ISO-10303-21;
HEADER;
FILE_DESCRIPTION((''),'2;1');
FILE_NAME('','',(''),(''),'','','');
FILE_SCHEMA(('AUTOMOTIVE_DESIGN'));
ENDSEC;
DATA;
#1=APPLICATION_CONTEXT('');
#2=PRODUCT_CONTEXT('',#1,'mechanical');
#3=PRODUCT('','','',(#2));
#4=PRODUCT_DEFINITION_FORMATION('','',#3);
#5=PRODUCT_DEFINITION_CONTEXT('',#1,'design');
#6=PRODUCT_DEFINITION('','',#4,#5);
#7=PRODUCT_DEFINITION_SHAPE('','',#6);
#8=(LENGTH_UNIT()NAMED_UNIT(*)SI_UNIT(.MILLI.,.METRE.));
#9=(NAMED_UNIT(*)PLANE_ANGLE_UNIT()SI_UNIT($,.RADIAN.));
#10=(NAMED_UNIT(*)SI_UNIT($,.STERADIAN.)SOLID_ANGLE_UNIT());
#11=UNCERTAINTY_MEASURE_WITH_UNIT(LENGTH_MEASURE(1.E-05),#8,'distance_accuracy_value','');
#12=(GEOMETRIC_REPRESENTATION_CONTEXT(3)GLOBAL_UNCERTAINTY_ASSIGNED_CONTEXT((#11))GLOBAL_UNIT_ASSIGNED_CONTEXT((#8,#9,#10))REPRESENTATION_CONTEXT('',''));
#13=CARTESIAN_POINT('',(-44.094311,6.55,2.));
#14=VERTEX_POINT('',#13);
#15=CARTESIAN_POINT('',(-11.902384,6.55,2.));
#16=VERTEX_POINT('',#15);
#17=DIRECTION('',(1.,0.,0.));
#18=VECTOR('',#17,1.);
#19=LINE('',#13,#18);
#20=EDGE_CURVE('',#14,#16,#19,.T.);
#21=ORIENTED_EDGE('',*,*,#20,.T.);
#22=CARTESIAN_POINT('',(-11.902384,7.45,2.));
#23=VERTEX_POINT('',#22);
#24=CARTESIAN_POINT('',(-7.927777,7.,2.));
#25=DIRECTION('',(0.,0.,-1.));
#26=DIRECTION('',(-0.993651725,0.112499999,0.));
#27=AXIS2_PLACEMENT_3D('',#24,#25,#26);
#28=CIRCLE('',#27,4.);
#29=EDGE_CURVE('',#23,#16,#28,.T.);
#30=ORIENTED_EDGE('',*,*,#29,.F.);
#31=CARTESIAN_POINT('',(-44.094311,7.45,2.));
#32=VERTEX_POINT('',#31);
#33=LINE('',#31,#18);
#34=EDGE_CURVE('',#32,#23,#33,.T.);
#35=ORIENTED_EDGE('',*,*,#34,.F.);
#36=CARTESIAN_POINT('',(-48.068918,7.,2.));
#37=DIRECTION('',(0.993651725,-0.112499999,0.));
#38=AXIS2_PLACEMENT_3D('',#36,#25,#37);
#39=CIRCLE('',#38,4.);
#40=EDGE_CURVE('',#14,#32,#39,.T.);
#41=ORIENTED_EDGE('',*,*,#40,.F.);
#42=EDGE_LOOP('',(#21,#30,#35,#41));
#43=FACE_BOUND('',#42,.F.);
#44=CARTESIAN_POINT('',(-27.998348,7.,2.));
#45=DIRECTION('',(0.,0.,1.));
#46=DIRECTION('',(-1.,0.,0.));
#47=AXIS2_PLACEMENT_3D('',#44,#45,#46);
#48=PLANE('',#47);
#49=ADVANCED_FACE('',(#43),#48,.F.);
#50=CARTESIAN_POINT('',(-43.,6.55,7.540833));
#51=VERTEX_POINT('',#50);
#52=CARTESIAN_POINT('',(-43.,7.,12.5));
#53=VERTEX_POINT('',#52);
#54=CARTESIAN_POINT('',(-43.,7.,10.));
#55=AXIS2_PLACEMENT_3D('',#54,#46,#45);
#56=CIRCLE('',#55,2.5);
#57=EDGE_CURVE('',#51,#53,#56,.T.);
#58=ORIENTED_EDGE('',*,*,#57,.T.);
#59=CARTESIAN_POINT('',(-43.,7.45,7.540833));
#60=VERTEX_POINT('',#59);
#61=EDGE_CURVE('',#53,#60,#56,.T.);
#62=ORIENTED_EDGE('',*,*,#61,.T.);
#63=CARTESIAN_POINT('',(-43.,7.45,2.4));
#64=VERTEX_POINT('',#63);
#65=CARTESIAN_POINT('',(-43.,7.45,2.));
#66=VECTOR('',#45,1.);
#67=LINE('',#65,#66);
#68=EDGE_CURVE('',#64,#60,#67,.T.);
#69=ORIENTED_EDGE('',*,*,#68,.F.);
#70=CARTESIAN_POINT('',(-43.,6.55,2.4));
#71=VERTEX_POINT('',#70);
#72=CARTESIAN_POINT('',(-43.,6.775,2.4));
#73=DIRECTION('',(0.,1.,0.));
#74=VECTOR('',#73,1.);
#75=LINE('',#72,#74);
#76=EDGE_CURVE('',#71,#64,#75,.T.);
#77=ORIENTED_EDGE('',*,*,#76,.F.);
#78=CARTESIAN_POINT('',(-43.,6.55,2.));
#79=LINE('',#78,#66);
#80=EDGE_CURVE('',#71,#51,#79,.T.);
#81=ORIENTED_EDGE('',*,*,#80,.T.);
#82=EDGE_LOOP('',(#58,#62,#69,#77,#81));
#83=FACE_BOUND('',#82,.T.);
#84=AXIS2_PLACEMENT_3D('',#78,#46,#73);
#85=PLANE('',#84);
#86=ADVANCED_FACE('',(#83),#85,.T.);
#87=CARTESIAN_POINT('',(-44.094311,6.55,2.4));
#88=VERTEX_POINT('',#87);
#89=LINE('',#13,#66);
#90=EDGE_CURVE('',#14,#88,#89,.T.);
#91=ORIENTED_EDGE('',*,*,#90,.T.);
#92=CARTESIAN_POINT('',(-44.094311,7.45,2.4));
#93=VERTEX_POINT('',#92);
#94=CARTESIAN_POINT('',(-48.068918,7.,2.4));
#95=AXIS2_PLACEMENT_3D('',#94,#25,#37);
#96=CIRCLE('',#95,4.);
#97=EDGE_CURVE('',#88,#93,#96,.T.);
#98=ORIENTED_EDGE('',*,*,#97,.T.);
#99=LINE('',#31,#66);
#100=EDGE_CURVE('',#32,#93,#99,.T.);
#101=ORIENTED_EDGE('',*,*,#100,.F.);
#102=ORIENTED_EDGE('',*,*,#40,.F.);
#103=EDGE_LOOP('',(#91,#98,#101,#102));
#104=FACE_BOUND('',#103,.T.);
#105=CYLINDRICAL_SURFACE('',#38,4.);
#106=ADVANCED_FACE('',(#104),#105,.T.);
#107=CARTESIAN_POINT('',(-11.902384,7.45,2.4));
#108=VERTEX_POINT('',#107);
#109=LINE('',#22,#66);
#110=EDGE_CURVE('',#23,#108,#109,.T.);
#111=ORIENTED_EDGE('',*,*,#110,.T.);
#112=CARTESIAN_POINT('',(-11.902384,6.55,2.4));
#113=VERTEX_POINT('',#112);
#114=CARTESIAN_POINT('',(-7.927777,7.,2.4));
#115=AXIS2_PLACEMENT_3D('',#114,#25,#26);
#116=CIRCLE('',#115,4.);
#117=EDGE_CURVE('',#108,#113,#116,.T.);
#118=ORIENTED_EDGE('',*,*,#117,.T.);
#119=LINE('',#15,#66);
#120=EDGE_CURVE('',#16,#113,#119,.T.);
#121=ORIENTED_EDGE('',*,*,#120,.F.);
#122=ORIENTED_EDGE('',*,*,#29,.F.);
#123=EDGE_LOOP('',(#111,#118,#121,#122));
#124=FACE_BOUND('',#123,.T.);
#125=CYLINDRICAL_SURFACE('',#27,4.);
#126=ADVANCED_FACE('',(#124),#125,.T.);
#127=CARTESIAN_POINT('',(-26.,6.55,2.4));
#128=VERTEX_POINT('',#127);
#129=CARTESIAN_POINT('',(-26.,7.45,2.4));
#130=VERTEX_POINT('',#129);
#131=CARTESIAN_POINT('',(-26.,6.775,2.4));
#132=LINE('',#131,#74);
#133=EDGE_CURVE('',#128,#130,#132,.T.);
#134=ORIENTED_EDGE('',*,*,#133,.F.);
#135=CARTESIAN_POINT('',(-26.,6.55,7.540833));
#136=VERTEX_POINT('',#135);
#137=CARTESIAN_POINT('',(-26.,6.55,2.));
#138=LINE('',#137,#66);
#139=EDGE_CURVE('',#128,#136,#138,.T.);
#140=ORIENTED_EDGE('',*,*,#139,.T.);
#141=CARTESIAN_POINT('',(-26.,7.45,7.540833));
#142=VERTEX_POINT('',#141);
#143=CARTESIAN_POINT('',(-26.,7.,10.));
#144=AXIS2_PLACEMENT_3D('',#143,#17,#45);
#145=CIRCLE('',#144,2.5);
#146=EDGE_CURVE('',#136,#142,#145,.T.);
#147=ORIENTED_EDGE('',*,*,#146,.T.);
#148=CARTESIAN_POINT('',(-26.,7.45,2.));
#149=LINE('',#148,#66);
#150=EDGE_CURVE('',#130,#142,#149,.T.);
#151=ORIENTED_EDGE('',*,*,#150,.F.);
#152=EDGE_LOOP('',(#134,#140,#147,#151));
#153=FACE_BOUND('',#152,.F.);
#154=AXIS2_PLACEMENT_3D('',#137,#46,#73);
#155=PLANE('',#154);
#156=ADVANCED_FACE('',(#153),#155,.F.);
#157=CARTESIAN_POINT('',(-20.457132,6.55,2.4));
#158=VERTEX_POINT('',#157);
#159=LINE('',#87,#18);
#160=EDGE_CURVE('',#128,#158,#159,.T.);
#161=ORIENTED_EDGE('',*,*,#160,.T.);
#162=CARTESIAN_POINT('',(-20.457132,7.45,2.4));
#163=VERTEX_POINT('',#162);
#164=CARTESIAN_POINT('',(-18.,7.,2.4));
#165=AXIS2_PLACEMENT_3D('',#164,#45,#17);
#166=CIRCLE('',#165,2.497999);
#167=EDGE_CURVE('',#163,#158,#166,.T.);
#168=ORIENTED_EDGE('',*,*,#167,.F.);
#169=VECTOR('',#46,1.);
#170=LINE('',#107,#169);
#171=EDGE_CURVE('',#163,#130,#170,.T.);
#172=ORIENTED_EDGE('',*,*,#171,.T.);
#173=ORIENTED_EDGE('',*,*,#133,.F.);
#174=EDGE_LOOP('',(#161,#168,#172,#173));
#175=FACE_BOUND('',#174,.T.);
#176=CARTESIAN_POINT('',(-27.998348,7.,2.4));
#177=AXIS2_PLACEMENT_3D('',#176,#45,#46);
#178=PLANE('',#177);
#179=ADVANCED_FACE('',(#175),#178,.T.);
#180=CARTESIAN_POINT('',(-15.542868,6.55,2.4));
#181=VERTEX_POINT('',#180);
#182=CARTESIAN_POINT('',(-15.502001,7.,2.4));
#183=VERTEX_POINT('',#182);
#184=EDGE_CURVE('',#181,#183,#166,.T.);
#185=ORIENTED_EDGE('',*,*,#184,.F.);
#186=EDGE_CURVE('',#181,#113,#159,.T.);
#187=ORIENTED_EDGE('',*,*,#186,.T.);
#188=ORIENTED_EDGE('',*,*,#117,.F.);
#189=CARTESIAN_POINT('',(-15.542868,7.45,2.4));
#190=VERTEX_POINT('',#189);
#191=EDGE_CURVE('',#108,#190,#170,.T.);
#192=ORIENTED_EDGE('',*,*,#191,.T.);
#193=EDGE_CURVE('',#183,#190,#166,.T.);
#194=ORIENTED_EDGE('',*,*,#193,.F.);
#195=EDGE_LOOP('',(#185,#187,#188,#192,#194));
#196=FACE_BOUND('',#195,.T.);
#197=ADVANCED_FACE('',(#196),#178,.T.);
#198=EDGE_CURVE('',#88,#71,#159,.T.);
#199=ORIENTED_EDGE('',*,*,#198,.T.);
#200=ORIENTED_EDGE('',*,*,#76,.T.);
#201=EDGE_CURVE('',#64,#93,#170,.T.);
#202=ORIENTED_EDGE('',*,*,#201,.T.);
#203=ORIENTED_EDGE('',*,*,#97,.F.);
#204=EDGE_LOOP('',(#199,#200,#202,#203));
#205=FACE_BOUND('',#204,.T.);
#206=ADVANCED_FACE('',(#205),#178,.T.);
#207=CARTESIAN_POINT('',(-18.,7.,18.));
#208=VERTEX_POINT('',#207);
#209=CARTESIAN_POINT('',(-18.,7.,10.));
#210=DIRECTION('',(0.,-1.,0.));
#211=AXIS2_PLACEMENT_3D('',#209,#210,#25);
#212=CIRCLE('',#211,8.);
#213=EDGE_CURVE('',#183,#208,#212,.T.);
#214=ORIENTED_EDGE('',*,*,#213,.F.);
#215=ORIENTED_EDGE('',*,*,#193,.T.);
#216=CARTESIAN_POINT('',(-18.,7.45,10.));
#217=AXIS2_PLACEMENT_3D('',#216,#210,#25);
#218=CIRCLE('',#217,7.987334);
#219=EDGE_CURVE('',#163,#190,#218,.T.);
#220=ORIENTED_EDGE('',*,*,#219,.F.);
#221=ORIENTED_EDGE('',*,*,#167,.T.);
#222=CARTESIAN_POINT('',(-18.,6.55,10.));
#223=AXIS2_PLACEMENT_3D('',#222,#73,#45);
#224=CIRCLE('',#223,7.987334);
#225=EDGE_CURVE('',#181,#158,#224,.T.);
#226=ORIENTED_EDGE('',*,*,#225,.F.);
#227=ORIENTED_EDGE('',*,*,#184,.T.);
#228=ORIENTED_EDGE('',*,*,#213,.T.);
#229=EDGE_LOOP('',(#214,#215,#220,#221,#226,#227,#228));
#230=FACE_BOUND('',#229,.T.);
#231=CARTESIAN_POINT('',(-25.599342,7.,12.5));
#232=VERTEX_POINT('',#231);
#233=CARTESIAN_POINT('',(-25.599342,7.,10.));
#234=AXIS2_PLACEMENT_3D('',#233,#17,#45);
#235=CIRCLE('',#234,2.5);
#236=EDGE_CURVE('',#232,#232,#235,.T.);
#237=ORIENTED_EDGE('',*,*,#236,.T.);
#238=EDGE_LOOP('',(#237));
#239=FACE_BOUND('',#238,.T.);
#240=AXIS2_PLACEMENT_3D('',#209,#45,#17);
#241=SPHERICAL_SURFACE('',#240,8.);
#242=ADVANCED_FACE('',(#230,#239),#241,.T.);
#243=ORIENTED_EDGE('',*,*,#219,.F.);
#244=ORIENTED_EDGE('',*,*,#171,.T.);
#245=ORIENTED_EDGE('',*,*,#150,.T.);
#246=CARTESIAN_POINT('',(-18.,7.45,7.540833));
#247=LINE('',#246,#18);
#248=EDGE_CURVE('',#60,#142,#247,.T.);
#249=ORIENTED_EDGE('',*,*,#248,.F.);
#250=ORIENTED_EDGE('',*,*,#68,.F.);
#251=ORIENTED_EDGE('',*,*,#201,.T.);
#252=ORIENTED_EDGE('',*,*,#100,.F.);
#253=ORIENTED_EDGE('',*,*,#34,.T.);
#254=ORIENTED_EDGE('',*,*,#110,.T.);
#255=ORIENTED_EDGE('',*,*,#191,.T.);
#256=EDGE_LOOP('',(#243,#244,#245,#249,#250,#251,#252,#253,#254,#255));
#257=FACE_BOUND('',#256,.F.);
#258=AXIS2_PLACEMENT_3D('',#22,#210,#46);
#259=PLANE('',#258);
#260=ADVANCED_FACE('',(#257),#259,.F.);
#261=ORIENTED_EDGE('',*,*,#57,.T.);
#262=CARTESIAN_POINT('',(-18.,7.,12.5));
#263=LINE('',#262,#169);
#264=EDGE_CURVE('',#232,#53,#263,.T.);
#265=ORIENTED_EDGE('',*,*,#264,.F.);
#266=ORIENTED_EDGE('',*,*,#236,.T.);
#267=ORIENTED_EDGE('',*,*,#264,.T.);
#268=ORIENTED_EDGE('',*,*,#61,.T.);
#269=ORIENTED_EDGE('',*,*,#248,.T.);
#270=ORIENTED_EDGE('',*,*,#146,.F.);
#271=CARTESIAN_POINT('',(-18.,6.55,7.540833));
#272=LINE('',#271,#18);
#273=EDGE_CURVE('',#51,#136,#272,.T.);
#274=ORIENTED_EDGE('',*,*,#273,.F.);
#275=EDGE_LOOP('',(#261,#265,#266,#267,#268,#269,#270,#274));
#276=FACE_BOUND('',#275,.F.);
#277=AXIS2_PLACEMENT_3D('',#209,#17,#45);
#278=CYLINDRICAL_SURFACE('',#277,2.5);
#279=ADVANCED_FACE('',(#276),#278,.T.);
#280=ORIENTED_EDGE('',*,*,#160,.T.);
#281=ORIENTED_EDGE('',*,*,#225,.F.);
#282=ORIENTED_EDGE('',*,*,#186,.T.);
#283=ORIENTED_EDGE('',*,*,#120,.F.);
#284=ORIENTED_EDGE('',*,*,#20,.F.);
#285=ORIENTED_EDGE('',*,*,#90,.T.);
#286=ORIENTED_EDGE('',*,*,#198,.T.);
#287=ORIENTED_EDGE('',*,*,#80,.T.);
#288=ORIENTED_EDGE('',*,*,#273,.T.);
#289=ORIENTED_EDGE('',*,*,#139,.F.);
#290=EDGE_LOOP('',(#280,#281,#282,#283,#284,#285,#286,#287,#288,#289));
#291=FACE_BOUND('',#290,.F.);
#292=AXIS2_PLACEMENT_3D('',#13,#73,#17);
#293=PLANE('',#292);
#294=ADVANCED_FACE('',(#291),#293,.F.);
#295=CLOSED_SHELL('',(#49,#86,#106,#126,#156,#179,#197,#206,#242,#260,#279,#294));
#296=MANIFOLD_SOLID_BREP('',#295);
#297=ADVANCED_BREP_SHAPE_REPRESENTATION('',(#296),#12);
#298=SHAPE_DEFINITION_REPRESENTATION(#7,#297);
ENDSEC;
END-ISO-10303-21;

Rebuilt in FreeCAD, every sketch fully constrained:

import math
import FreeCAD as App
import Part
import Sketcher
from FreeCAD import Vector


def add_polygon(sketch, points):
    """Adds a closed chain of lines whose ends are joined by coincident constraints."""
    first, n = sketch.GeometryCount, len(points)
    for a, b in zip(points, points[1:] + points[:1]):
        sketch.addGeometry(Part.LineSegment(App.Vector(*a, 0), App.Vector(*b, 0)), False)
    for i in range(n):
        sketch.addConstraint(Sketcher.Constraint("Coincident", first + i, 2, first + (i + 1) % n, 1))

doc = App.newDocument("Part")
body = doc.addObject("PartDesign::Body", "Body")

sketch1 = body.newObject("Sketcher::SketchObject", "Sketch")
sketch1.AttachmentSupport = (doc.getObject("XY_Plane"), [""])
sketch1.MapMode = "FlatFace"
sketch1.AttachmentOffset = App.Placement(Vector(0, 0, 2), App.Rotation())
sketch1.addGeometry([
    Part.LineSegment(Vector(-11.9, 6.5, 0), Vector(-44.1, 6.5, 0)),
    Part.ArcOfCircle(Part.Circle(Vector(-48.1, 7, 0), Vector(0, 0, 1), 4), math.radians(6), math.radians(354)),
    Part.LineSegment(Vector(-44.1, 7.5, 0), Vector(-11.9, 7.5, 0)),
    Part.ArcOfCircle(Part.Circle(Vector(-7.9, 7, 0), Vector(0, 0, 1), 4), math.radians(-174), math.radians(174)),
], False)
sketch1.addConstraint([
    Sketcher.Constraint("Coincident", 0, 2, 1, 2),
    Sketcher.Constraint("Coincident", 1, 1, 2, 1),
    Sketcher.Constraint("Coincident", 2, 2, 3, 2),
    Sketcher.Constraint("Coincident", 3, 1, 0, 1),
    Sketcher.Constraint("Horizontal", 0),
    Sketcher.Constraint("Horizontal", 2),
    Sketcher.Constraint("Equal", 1, 3),
    Sketcher.Constraint("Horizontal", 1, 3, 3, 3),
    Sketcher.Constraint("Vertical", 0, 2, 1, 1),
    Sketcher.Constraint("Radius", 1, 4.0),
    Sketcher.Constraint("DistanceY", -1, 1, 1, 3, 7.0),
    Sketcher.Constraint("DistanceY", 0, 2, 1, 1, 0.9),
    Sketcher.Constraint("DistanceX", 0, 2, 0, 1, 32.191927),
    Sketcher.Constraint("DistanceX", 0, 2, -1, 1, 44.094311),
])
pad1 = body.newObject("PartDesign::Pad", "Pad")
pad1.Profile = sketch1
pad1.Length = 0.4
body2 = doc.addObject("PartDesign::Body", "Body001")

sketch2 = body2.newObject("Sketcher::SketchObject", "Sketch001")
sketch2.AttachmentSupport = (doc.getObject("YZ_Plane001"), [""])
sketch2.MapMode = "FlatFace"
sketch2.AttachmentOffset = App.Placement(Vector(0, 0, -18), App.Rotation())
sketch2.addGeometry(Part.Circle(Vector(7, 10, 0), Vector(0, 0, 1), 2.5), False)
sketch2.addConstraint([
    Sketcher.Constraint("Diameter", 0, 5.0),
    Sketcher.Constraint("DistanceX", -1, 1, 0, 3, 7.0),
    Sketcher.Constraint("DistanceY", -1, 1, 0, 3, 10.0),
])
pad2 = body2.newObject("PartDesign::Pad", "Pad001")
pad2.Profile = sketch2
pad2.Length = 25
pad2.Reversed = True
body3 = doc.addObject("PartDesign::Body", "Body002")

sketch3 = body3.newObject("Sketcher::SketchObject", "Sketch002")
sketch3.AttachmentSupport = (doc.getObject("XY_Plane002"), [""])
sketch3.MapMode = "FlatFace"
sketch3.AttachmentOffset = App.Placement(Vector(0, 0, 2), App.Rotation())
add_polygon(sketch3, [(-43, 7.5), (-43, 6.5), (-26, 6.5), (-26, 7.5)])
sketch3.addConstraint([
    Sketcher.Constraint("Vertical", 0),
    Sketcher.Constraint("Horizontal", 1),
    Sketcher.Constraint("Vertical", 2),
    Sketcher.Constraint("Horizontal", 3),
    Sketcher.Constraint("DistanceX", 1, 1, 1, 2, 17.0),
    Sketcher.Constraint("DistanceY", 0, 2, 0, 1, 0.9),
    Sketcher.Constraint("DistanceX", 0, 2, -1, 1, 43.0),
    Sketcher.Constraint("DistanceY", -1, 1, 0, 2, 6.55),
])
pad3 = body3.newObject("PartDesign::Pad", "Pad002")
pad3.Profile = sketch3
pad3.Length = 8
body4 = doc.addObject("PartDesign::Body", "Body003")

sketch4 = body4.newObject("Sketcher::SketchObject", "Sketch003")
sketch4.AttachmentSupport = (doc.getObject("XZ_Plane003"), [""])
sketch4.MapMode = "FlatFace"
sketch4.AttachmentOffset = App.Placement(Vector(0, 0, -7), App.Rotation())
sketch4.addGeometry([
    Part.ArcOfCircle(Part.Circle(Vector(-18, 10, 0), Vector(0, 0, 1), 8), math.radians(-90), math.radians(90)),
    Part.LineSegment(Vector(-18, 18, 0), Vector(-18, 2, 0)),
], False)
sketch4.addGeometry(Part.LineSegment(Vector(-18, 2, 0), Vector(-18, 18, 0)), True)
sketch4.addConstraint([
    Sketcher.Constraint("Coincident", 0, 1, 1, 2),
    Sketcher.Constraint("Coincident", 1, 1, 0, 2),
    Sketcher.Constraint("Vertical", 1),
    Sketcher.Constraint("Vertical", 2),
    Sketcher.Constraint("Coincident", 2, 1, 0, 1),
    Sketcher.Constraint("Equal", 1, 2),
    Sketcher.Constraint("Radius", 0, 8.0),
    Sketcher.Constraint("DistanceX", 0, 3, -1, 1, 18.0),
    Sketcher.Constraint("DistanceY", -1, 1, 0, 3, 10.0),
    Sketcher.Constraint("DistanceX", 0, 1, -1, 1, 18.0),
])
revolution = body4.newObject("PartDesign::Revolution", "Revolution")
revolution.Profile = sketch4
revolution.ReferenceAxis = (sketch4, ["Axis0"])
revolution.Angle = 360
doc.recompute()

boolean = body4.newObject("PartDesign::Boolean", "Boolean")
boolean.Type = "Fuse"
boolean.addObjects([body2])
doc.recompute()

boolean2 = body4.newObject("PartDesign::Boolean", "Boolean001")
boolean2.Type = "Fuse"
boolean2.addObjects([body3])
doc.recompute()

boolean3 = body4.newObject("PartDesign::Boolean", "Boolean002")
boolean3.Type = "Fuse"
boolean3.addObjects([body])

doc.recompute()
